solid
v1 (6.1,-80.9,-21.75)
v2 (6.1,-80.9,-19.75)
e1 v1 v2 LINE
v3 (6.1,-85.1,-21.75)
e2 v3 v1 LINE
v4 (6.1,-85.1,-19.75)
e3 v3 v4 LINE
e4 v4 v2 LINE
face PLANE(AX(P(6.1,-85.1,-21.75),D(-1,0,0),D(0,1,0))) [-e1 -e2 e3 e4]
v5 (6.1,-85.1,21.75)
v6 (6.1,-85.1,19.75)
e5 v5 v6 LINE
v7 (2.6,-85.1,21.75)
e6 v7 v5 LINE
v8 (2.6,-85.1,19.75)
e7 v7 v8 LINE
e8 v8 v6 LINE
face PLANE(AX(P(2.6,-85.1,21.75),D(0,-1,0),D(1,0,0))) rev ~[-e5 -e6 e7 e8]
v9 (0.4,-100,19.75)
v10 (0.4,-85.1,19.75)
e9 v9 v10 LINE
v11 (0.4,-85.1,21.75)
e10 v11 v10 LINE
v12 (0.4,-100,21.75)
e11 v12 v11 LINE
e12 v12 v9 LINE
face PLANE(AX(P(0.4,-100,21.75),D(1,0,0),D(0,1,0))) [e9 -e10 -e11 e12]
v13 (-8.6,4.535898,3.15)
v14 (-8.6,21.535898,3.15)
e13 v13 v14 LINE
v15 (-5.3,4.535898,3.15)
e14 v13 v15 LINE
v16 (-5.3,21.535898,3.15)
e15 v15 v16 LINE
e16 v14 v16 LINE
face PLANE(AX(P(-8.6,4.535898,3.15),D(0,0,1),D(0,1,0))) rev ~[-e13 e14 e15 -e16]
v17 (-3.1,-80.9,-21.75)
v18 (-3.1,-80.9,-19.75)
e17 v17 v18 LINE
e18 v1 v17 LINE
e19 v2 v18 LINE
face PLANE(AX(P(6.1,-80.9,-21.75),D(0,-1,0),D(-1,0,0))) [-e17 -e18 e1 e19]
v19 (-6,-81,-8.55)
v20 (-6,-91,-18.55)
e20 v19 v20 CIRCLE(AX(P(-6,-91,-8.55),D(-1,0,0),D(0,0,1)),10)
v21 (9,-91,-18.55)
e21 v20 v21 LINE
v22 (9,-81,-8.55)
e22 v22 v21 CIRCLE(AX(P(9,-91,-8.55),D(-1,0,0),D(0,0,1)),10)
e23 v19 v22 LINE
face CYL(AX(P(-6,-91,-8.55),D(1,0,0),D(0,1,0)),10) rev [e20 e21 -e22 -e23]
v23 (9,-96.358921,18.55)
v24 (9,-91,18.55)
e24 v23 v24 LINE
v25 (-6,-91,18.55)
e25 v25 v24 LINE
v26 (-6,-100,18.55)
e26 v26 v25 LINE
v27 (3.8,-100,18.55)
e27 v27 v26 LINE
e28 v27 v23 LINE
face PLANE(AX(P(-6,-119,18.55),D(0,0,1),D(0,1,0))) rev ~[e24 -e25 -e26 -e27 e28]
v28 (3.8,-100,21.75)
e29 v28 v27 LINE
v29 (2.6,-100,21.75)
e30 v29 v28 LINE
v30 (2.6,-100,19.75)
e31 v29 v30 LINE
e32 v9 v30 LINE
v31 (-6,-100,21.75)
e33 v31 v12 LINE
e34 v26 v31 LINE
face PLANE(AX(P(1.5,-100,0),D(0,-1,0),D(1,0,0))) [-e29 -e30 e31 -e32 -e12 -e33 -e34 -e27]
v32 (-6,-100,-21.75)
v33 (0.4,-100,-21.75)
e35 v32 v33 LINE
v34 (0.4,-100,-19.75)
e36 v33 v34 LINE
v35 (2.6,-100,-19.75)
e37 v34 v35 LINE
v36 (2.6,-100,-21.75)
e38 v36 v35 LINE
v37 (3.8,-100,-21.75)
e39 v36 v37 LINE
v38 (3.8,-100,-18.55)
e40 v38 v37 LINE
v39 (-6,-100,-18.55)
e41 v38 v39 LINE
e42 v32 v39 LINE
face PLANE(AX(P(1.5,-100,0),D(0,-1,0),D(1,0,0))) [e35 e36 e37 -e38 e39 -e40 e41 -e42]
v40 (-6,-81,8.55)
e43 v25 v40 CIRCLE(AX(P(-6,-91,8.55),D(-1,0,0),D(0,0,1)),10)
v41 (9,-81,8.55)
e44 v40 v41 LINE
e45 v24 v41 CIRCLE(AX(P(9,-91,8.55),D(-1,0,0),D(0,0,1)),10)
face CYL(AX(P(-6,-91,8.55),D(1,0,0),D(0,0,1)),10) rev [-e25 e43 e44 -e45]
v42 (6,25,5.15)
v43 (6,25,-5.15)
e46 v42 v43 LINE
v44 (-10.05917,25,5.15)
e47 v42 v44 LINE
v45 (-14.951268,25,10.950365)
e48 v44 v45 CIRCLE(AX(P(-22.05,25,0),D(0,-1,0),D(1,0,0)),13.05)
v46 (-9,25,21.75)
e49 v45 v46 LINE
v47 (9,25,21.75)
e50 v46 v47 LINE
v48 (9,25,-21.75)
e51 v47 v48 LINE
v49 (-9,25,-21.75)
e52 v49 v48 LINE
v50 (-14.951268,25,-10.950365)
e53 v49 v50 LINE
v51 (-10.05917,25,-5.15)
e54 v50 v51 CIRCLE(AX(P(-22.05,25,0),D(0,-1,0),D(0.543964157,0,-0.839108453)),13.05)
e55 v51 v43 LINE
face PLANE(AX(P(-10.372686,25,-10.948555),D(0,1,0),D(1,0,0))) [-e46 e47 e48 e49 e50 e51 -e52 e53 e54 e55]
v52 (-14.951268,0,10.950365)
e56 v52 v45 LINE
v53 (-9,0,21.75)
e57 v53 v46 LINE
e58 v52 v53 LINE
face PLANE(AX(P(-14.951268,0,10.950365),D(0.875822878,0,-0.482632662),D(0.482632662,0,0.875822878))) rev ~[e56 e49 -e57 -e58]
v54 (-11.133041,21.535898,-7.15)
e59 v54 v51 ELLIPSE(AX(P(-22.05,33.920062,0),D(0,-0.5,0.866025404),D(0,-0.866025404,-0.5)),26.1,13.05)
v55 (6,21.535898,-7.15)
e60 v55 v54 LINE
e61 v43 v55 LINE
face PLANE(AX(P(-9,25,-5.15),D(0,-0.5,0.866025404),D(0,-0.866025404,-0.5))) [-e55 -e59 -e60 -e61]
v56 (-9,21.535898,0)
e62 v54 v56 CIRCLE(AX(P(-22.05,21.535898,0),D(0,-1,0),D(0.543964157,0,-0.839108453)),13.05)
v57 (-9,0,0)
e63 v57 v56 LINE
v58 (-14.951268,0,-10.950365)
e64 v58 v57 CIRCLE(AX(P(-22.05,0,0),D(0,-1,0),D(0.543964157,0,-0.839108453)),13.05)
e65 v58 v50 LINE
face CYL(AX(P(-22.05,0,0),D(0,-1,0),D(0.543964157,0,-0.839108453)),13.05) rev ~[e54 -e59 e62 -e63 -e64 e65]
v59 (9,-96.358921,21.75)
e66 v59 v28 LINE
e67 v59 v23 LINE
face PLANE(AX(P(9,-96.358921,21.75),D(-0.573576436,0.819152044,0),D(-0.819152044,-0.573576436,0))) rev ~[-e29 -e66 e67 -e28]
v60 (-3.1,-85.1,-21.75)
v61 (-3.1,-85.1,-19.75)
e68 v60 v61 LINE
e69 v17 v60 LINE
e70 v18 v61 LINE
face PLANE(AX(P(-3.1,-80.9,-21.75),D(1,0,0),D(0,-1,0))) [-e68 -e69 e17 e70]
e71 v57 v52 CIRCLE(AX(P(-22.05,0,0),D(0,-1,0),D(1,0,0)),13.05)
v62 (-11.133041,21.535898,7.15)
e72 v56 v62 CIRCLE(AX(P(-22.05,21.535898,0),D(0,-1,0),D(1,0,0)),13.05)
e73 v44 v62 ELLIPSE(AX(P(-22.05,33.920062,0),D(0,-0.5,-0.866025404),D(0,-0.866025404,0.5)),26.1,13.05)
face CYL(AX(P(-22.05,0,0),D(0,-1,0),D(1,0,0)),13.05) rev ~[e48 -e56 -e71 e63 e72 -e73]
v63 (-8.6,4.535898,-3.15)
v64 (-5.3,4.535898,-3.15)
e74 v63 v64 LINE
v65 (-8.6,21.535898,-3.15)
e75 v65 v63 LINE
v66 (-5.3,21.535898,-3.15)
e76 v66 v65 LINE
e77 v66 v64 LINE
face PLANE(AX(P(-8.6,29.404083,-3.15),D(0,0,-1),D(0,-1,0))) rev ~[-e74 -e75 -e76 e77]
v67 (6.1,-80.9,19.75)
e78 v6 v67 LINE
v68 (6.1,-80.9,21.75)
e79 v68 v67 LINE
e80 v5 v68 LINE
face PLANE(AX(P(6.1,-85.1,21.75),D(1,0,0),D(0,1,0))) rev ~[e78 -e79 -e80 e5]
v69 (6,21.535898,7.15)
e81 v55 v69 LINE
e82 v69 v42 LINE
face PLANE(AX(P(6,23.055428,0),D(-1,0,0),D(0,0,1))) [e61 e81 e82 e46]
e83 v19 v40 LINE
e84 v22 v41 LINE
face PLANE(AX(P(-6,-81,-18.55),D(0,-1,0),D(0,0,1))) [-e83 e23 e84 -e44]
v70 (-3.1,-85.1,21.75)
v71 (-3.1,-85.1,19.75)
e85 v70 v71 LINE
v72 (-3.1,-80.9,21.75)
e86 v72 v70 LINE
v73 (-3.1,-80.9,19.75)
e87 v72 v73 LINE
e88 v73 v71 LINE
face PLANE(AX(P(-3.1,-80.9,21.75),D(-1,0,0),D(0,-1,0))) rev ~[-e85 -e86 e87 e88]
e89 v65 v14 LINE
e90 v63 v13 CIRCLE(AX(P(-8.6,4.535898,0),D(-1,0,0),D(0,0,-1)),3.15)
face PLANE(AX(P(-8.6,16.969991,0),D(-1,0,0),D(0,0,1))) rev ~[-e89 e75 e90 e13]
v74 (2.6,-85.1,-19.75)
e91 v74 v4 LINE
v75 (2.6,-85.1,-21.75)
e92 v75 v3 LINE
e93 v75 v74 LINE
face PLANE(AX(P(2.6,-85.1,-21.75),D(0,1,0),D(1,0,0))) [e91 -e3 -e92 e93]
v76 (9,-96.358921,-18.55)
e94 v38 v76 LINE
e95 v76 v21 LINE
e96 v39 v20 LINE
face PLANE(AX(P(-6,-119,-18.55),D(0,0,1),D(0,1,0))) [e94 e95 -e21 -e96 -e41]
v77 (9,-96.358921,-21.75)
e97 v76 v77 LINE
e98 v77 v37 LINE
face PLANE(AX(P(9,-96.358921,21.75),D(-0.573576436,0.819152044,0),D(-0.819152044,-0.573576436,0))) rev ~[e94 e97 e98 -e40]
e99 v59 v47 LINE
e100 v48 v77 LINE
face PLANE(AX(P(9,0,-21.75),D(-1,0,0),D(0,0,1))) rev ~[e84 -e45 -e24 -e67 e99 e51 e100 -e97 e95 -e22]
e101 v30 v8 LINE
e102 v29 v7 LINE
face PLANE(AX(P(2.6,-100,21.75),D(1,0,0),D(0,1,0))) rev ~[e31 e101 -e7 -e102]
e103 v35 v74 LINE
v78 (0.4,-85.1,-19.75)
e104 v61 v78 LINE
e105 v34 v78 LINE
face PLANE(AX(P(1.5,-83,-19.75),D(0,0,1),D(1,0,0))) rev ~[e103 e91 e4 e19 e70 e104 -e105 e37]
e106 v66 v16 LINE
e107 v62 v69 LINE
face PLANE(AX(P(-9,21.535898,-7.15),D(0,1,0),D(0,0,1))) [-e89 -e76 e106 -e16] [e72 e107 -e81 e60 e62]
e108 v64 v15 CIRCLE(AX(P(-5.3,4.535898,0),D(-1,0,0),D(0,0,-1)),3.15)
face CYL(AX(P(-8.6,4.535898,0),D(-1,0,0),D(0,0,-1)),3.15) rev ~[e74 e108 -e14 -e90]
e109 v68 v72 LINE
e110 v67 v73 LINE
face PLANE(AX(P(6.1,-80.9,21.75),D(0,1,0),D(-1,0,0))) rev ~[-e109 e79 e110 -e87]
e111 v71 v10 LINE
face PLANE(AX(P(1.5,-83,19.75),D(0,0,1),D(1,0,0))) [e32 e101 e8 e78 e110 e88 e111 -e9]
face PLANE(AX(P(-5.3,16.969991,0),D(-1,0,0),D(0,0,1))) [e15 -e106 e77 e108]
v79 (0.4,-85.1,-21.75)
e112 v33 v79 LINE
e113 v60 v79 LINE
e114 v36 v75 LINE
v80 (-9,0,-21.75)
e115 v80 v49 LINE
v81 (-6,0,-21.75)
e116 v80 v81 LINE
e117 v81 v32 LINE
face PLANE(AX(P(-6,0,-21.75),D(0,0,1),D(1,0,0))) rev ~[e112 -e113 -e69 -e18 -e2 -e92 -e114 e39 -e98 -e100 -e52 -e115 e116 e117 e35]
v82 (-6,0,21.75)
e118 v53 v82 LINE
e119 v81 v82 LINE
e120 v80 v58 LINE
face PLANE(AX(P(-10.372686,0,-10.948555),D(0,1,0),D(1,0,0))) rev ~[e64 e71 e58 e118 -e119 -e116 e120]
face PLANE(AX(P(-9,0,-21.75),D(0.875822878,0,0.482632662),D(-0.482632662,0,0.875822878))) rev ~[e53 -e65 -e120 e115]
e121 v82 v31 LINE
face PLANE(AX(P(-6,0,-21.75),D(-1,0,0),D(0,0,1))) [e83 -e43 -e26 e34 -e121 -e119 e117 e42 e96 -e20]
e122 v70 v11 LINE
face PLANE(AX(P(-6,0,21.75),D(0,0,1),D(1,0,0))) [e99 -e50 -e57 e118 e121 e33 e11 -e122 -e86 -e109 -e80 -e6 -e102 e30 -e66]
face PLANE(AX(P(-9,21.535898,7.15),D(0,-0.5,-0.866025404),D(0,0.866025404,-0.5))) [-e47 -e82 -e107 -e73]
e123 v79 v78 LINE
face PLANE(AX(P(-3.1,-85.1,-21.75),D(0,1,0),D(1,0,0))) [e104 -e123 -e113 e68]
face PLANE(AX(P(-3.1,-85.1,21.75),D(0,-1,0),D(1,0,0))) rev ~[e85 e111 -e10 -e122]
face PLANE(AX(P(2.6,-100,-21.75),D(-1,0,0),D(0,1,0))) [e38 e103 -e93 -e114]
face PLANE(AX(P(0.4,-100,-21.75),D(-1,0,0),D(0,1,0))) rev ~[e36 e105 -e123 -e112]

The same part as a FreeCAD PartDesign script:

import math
import FreeCAD as App
import Part
import Sketcher
Q = App.Units.Quantity


def edges_at(feature, points):
    """Names of the edges that pass closest to the given points."""
    edges = feature.Shape.Edges
    near = lambda p: min(range(len(edges)), key=lambda i: edges[i].distToShape(Part.Vertex(*p))[0])
    return sorted({f"Edge{near(p) + 1}" for p in points})


def add_polygon(sketch, points):
    """Adds a closed chain of lines whose ends are joined by coincident constraints."""
    first, n = sketch.GeometryCount, len(points)
    for a, b in zip(points, points[1:] + points[:1]):
        sketch.addGeometry(Part.LineSegment(App.Vector(*a, 0), App.Vector(*b, 0)), False)
    for i in range(n):
        sketch.addConstraint(Sketcher.Constraint("Coincident", first + i, 2, first + (i + 1) % n, 1))

doc = App.newDocument("Part")
body = doc.addObject("PartDesign::Body", "Body")

sketch1 = body.newObject("Sketcher::SketchObject", "Sketch")
sketch1.AttachmentSupport = (doc.getObject("XZ_Plane"), [""])
sketch1.MapMode = "FlatFace"
sketch1.addGeometry([
    Part.LineSegment(App.Vector(-9, -22, 0), App.Vector(-15, -11, 0)),
    Part.ArcOfCircle(Part.Circle(App.Vector(-22, 0, 0), App.Vector(0, 0, 1), 13), math.radians(-57), math.radians(0)),
    Part.ArcOfCircle(Part.Circle(App.Vector(-22, 0, 0), App.Vector(0, 0, 1), 13), math.radians(0), math.radians(57)),
    Part.LineSegment(App.Vector(-15, 11, 0), App.Vector(-9, 22, 0)),
    Part.LineSegment(App.Vector(-9, 22, 0), App.Vector(9, 22, 0)),
    Part.LineSegment(App.Vector(9, 22, 0), App.Vector(9, -22, 0)),
    Part.LineSegment(App.Vector(9, -22, 0), App.Vector(-9, -22, 0)),
], False)
sketch1.addConstraint([
    Sketcher.Constraint("Coincident", 0, 2, 1, 1),
    Sketcher.Constraint("Tangent", 1, 2, 2, 1),
    Sketcher.Constraint("Coincident", 2, 2, 3, 1),
    Sketcher.Constraint("Coincident", 3, 2, 4, 1),
    Sketcher.Constraint("Coincident", 4, 2, 5, 1),
    Sketcher.Constraint("Coincident", 5, 2, 6, 1),
    Sketcher.Constraint("Coincident", 6, 2, 0, 1),
    Sketcher.Constraint("Horizontal", 4),
    Sketcher.Constraint("Vertical", 5),
    Sketcher.Constraint("Horizontal", 6),
    Sketcher.Constraint("Equal", 1, 2),
    Sketcher.Constraint("Symmetric", 3, 2, 5, 2, -1, 1),
    Sketcher.Constraint("Symmetric", 0, 2, 2, 2, -1),
    Sketcher.Constraint("PointOnObject", 1, 2, -1),
    Sketcher.Constraint("Vertical", 1, 2, 3, 2),
    Sketcher.Constraint("Vertical", 3, 2, 6, 2),
    Sketcher.Constraint("DistanceX", 4, 1, 4, 2, 18.0),
    Sketcher.Constraint("Radius", 1, 13.05),
    Sketcher.Constraint("DistanceY", 5, 2, 5, 1, 43.5),
    Sketcher.Constraint("DistanceY", 0, 2, 2, 2, 21.900731),
])
pad1 = body.newObject("PartDesign::Pad", "Pad")
pad1.Profile = sketch1
pad1.Length = 25
pad1.Reversed = True

sketch2 = body.newObject("Sketcher::SketchObject", "Sketch001")
sketch2.AttachmentSupport = (doc.getObject("YZ_Plane"), [""])
sketch2.MapMode = "FlatFace"
sketch2.AttachmentOffset = App.Placement(App.Vector(0, 0, -9), App.Rotation())
add_polygon(sketch2, [(25, -5.2), (25, 5.2), (21.5, 7.2), (21.5, -7.2)])
sketch2.addConstraint([
    Sketcher.Constraint("Vertical", 0),
    Sketcher.Constraint("Vertical", 2),
    Sketcher.Constraint("Equal", 1, 3),
    Sketcher.Constraint("Angle", 1, Q("150 deg")),
    Sketcher.Constraint("Distance", 1, 4.0),
    Sketcher.Constraint("DistanceY", 0, 1, 0, 2, 10.3),
    Sketcher.Constraint("DistanceX", -1, 1, 0, 2, 25.0),
    Sketcher.Constraint("DistanceY", -1, 1, 0, 2, 5.15),
])
pocket1 = body.newObject("PartDesign::Pocket", "Pocket")
pocket1.Profile = sketch2
pocket1.Type = "TwoLengths"
pocket1.Length = 15
pocket1.Length2 = 6.951268
pocket1.Reversed = True

sketch3 = body.newObject("Sketcher::SketchObject", "Sketch002")
sketch3.AttachmentSupport = (doc.getObject("YZ_Plane"), [""])
sketch3.MapMode = "FlatFace"
sketch3.AttachmentOffset = App.Placement(App.Vector(0, 0, -8.6), App.Rotation())
sketch3.addGeometry([
    Part.LineSegment(App.Vector(4.5, -3.1, 0), App.Vector(29.4, -3.1, 0)),
    Part.ArcOfCircle(Part.Circle(App.Vector(29.4, 0, 0), App.Vector(0, 0, 1), 3.1), math.radians(-90), math.radians(90)),
    Part.LineSegment(App.Vector(29.4, 3.1, 0), App.Vector(4.5, 3.1, 0)),
    Part.ArcOfCircle(Part.Circle(App.Vector(4.5, 0, 0), App.Vector(0, 0, 1), 3.1), math.radians(90), math.radians(270)),
], False)
sketch3.addConstraint([
    Sketcher.Constraint("Tangent", 0, 2, 1, 1),
    Sketcher.Constraint("Tangent", 1, 2, 2, 1),
    Sketcher.Constraint("Tangent", 2, 2, 3, 1),
    Sketcher.Constraint("Tangent", 3, 2, 0, 1),
    Sketcher.Constraint("Horizontal", 0),
    Sketcher.Constraint("Horizontal", 2),
    Sketcher.Constraint("PointOnObject", 1, 3, -1),
    Sketcher.Constraint("Radius", 1, 3.15),
    Sketcher.Constraint("DistanceX", -1, 1, 3, 3, 4.535898),
    Sketcher.Constraint("DistanceX", 0, 1, 0, 2, 24.868184),
])
pocket2 = body.newObject("PartDesign::Pocket", "Pocket001")
pocket2.Profile = sketch3
pocket2.Length = 3.3
pocket2.Reversed = True

sketch4 = body.newObject("Sketcher::SketchObject", "Sketch003")
sketch4.AttachmentSupport = (doc.getObject("XZ_Plane"), [""])
sketch4.MapMode = "FlatFace"
add_polygon(sketch4, [(-6, 22), (-6, -22), (9, -22), (9, 22)])
sketch4.addConstraint([
    Sketcher.Constraint("Vertical", 0),
    Sketcher.Constraint("Horizontal", 1),
    Sketcher.Constraint("Vertical", 2),
    Sketcher.Constraint("Horizontal", 3),
    Sketcher.Constraint("DistanceX", 1, 1, 1, 2, 15.0),
    Sketcher.Constraint("DistanceY", 0, 2, 0, 1, 43.5),
    Sketcher.Constraint("DistanceX", 0, 2, -1, 1, 6.0),
    Sketcher.Constraint("DistanceY", 0, 2, -1, 1, 21.75),
])
pad2 = body.newObject("PartDesign::Pad", "Pad001")
pad2.Profile = sketch4
pad2.Length = 100

sketch5 = body.newObject("Sketcher::SketchObject", "Sketch004")
sketch5.AttachmentSupport = (doc.getObject("XY_Plane"), [""])
sketch5.MapMode = "FlatFace"
sketch5.AttachmentOffset = App.Placement(App.Vector(0, 0, 21.75), App.Rotation())
add_polygon(sketch5, [(-3.1, -85.1), (0.4, -85.1), (0.4, -100), (2.6, -100), (2.6, -85.1), (6.1, -85.1), (6.1, -80.9), (-3.1, -80.9)])
sketch5.addConstraint([
    Sketcher.Constraint("Horizontal", 0),
    Sketcher.Constraint("Vertical", 1),
    Sketcher.Constraint("Horizontal", 2),
    Sketcher.Constraint("Vertical", 3),
    Sketcher.Constraint("Horizontal", 4),
    Sketcher.Constraint("Vertical", 5),
    Sketcher.Constraint("Horizontal", 6),
    Sketcher.Constraint("Vertical", 7),
    Sketcher.Constraint("Horizontal", 0, 2, 3, 2),
    Sketcher.Constraint("Equal", 0, 4),
    Sketcher.Constraint("DistanceX", 0, 1, 0, 2, 3.5),
    Sketcher.Constraint("DistanceX", 2, 1, 2, 2, 2.2),
    Sketcher.Constraint("DistanceY", 1, 2, 1, 1, 14.9),
    Sketcher.Constraint("DistanceY", 5, 1, 5, 2, 4.2),
    Sketcher.Constraint("DistanceY", 1, 2, -1, 1, 100.0),
    Sketcher.Constraint("DistanceX", -1, 1, 0, 2, 0.4),
])
pocket3 = body.newObject("PartDesign::Pocket", "Pocket002")
pocket3.Profile = sketch5
pocket3.Length = 2

sketch6 = body.newObject("Sketcher::SketchObject", "Sketch005")
sketch6.AttachmentSupport = (doc.getObject("XY_Plane"), [""])
sketch6.MapMode = "FlatFace"
sketch6.AttachmentOffset = App.Placement(App.Vector(0, 0, -21.75), App.Rotation())
add_polygon(sketch6, [(-3.1, -85.1), (0.4, -85.1), (0.4, -100), (2.6, -100), (2.6, -85.1), (6.1, -85.1), (6.1, -80.9), (-3.1, -80.9)])
sketch6.addConstraint([
    Sketcher.Constraint("Horizontal", 0),
    Sketcher.Constraint("Vertical", 1),
    Sketcher.Constraint("Horizontal", 2),
    Sketcher.Constraint("Vertical", 3),
    Sketcher.Constraint("Horizontal", 4),
    Sketcher.Constraint("Vertical", 5),
    Sketcher.Constraint("Horizontal", 6),
    Sketcher.Constraint("Vertical", 7),
    Sketcher.Constraint("Horizontal", 0, 2, 3, 2),
    Sketcher.Constraint("Equal", 0, 4),
    Sketcher.Constraint("DistanceX", 0, 1, 0, 2, 3.5),
    Sketcher.Constraint("DistanceX", 2, 1, 2, 2, 2.2),
    Sketcher.Constraint("DistanceY", 1, 2, 1, 1, 14.9),
    Sketcher.Constraint("DistanceY", 5, 1, 5, 2, 4.2),
    Sketcher.Constraint("DistanceY", 1, 2, -1, 1, 100.0),
    Sketcher.Constraint("DistanceX", -1, 1, 0, 2, 0.4),
])
pocket4 = body.newObject("PartDesign::Pocket", "Pocket003")
pocket4.Profile = sketch6
pocket4.Length = 2
pocket4.Reversed = True

sketch7 = body.newObject("Sketcher::SketchObject", "Sketch006")
sketch7.AttachmentSupport = (doc.getObject("XY_Plane"), [""])
sketch7.MapMode = "FlatFace"
sketch7.AttachmentOffset = App.Placement(App.Vector(0, 0, 21.75), App.Rotation())
add_polygon(sketch7, [(9, -96.4), (3.8, -100), (9, -100)])
sketch7.addConstraint([
    Sketcher.Constraint("Horizontal", 1),
    Sketcher.Constraint("Vertical", 2),
    Sketcher.Constraint("Angle", 0, Q("-145 deg")),
    Sketcher.Constraint("DistanceX", 1, 1, 1, 2, 5.2),
    Sketcher.Constraint("DistanceY", 0, 2, -1, 1, 100.0),
    Sketcher.Constraint("DistanceX", -1, 1, 1, 2, 9.0),
])
pocket5 = body.newObject("PartDesign::Pocket", "Pocket004")
pocket5.Profile = sketch7
pocket5.Type = "ThroughAll"

sketch8 = body.newObject("Sketcher::SketchObject", "Sketch007")
sketch8.AttachmentSupport = (doc.getObject("YZ_Plane"), [""])
sketch8.MapMode = "FlatFace"
sketch8.AttachmentOffset = App.Placement(App.Vector(0, 0, -6), App.Rotation())
add_polygon(sketch8, [(-81, -19), (-119, -19), (-119, 19), (-81, 19)])
sketch8.addConstraint([
    Sketcher.Constraint("Horizontal", 0),
    Sketcher.Constraint("Vertical", 1),
    Sketcher.Constraint("Horizontal", 2),
    Sketcher.Constraint("Vertical", 3),
    Sketcher.Constraint("DistanceX", 0, 2, 0, 1, 38.0),
    Sketcher.Constraint("DistanceY", 1, 1, 1, 2, 37.1),
    Sketcher.Constraint("DistanceX", 0, 2, -1, 1, 119.0),
    Sketcher.Constraint("DistanceY", 0, 2, -1, 1, 18.55),
])
pocket6 = body.newObject("PartDesign::Pocket", "Pocket005")
pocket6.Profile = sketch8
pocket6.Type = "ThroughAll"
pocket6.Reversed = True
doc.recompute()

fillet = body.newObject("PartDesign::Fillet", "Fillet")
fillet.Base = (pocket6, edges_at(pocket6, [(1.5, -81, 18.55), (1.5, -81, -18.55)]))
fillet.Radius = 10

doc.recompute()
